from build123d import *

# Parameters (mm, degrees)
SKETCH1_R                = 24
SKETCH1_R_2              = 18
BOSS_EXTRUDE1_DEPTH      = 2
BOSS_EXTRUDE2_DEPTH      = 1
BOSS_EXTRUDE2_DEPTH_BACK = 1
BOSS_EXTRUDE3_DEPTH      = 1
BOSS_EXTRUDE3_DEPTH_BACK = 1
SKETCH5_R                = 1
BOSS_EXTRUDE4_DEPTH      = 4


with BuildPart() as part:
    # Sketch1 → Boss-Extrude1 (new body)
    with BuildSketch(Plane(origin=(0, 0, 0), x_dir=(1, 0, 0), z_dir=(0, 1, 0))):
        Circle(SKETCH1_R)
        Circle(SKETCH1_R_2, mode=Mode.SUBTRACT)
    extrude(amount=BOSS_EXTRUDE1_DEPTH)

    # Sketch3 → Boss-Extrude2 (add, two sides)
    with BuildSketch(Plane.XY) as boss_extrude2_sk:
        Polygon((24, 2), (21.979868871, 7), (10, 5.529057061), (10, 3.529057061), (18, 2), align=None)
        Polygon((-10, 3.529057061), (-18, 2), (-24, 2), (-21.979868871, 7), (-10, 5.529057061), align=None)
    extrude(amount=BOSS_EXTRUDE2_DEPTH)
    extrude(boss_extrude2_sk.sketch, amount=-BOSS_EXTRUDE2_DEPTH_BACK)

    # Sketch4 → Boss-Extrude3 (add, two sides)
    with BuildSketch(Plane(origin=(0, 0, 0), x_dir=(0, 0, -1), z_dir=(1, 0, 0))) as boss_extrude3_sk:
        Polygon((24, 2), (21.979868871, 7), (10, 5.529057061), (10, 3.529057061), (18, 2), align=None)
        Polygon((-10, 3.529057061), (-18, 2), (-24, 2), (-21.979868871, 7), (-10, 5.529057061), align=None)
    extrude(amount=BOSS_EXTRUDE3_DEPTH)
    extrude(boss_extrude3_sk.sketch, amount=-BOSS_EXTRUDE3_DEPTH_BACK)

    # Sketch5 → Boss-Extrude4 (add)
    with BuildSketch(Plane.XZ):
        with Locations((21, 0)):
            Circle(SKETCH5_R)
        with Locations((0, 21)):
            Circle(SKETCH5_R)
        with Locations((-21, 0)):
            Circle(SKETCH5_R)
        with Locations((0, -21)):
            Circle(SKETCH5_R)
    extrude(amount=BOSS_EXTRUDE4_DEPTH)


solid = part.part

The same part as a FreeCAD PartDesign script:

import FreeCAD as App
import Part
import Sketcher
from FreeCAD import Vector
Q = App.Units.Quantity

doc = App.newDocument("Part")
body = doc.addObject("PartDesign::Body", "Body")

# Sketch on XZ plane
sketch1 = body.newObject("Sketcher::SketchObject", "Sketch")
sketch1.AttachmentSupport = (doc.getObject("XZ_Plane"), [""])
sketch1.MapMode = "FlatFace"
sketch1.addGeometry([
    Part.Circle(Vector(0, 0, 0), Vector(0, 0, 1), 24),
    Part.Circle(Vector(0, 0, 0), Vector(0, 0, 1), 18),
], False)
sketch1.addConstraint([
    Sketcher.Constraint("Coincident", 0, 3, -1, 1),
    Sketcher.Constraint("Coincident", 1, 3, -1, 1),
    Sketcher.Constraint("Diameter", 0, Q("48 mm")),
    Sketcher.Constraint("Diameter", 1, Q("36 mm")),
])
pad1 = body.newObject("PartDesign::Pad", "Pad")
pad1.Profile = sketch1
pad1.Length = 2
pad1.Reversed = True

# Sketch on XY plane
sketch2 = body.newObject("Sketcher::SketchObject", "Sketch001")
sketch2.AttachmentSupport = (doc.getObject("XY_Plane"), [""])
sketch2.MapMode = "FlatFace"
sketch2.addGeometry([
    Part.LineSegment(Vector(24, 2, 0), Vector(21.979869, 7, 0)),  # 0
    Part.LineSegment(Vector(21.979869, 7, 0), Vector(10, 5.529057, 0)),  # 1
    Part.LineSegment(Vector(10, 5.529057, 0), Vector(10, 3.529057, 0)),  # 2
    Part.LineSegment(Vector(10, 3.529057, 0), Vector(18, 2, 0)),  # 3
    Part.LineSegment(Vector(18, 2, 0), Vector(24, 2, 0)),  # 4
    Part.LineSegment(Vector(-18, 2, 0), Vector(-10, 3.529057, 0)),  # 5
    Part.LineSegment(Vector(-10, 3.529057, 0), Vector(-10, 5.529057, 0)),  # 6
    Part.LineSegment(Vector(-10, 5.529057, 0), Vector(-21.979869, 7, 0)),  # 7
    Part.LineSegment(Vector(-21.979869, 7, 0), Vector(-24, 2, 0)),  # 8
    Part.LineSegment(Vector(-24, 2, 0), Vector(-18, 2, 0)),  # 9
], False)
sketch2.addConstraint([
    Sketcher.Constraint("Coincident", 0, 2, 1, 1),
    Sketcher.Constraint("Coincident", 1, 2, 2, 1),
    Sketcher.Constraint("Coincident", 2, 2, 3, 1),
    Sketcher.Constraint("Coincident", 3, 2, 4, 1),
    Sketcher.Constraint("Coincident", 4, 2, 0, 1),
    Sketcher.Constraint("Coincident", 5, 2, 6, 1),
    Sketcher.Constraint("Coincident", 6, 2, 7, 1),
    Sketcher.Constraint("Coincident", 7, 2, 8, 1),
    Sketcher.Constraint("Coincident", 8, 2, 9, 1),
    Sketcher.Constraint("Coincident", 9, 2, 5, 1),
    Sketcher.Constraint("Vertical", 2),
    Sketcher.Constraint("Horizontal", 4),
    Sketcher.Constraint("Vertical", 6),
    Sketcher.Constraint("Horizontal", 9),
    Sketcher.Constraint("Symmetric", 2, 2, 5, 2, -2),
    Sketcher.Constraint("Symmetric", 0, 2, 7, 2, -2),
    Sketcher.Constraint("Symmetric", 4, 2, 8, 2, -2),
    Sketcher.Constraint("Horizontal", 1, 2, 6, 2),
    Sketcher.Constraint("Equal", 4, 9),
    Sketcher.Constraint("DistanceX", 4, 1, 4, 2, Q("6 mm")),
    Sketcher.Constraint("DistanceY", 2, 2, 2, 1, Q("2 mm")),
    Sketcher.Constraint("Angle", 0, Q("112 deg")),
    Sketcher.Constraint("Angle", 1, Q("-173 deg")),
    Sketcher.Constraint("DistanceY", -1, 1, 0, 2, Q("7 mm")),
    Sketcher.Constraint("DistanceX", -1, 1, 1, 2, Q("10 mm")),
    Sketcher.Constraint("DistanceX", -1, 1, 3, 2, Q("18 mm")),
    Sketcher.Constraint("DistanceY", -1, 1, 3, 2, Q("2 mm")),
])
pad2 = body.newObject("PartDesign::Pad", "Pad001")
pad2.Profile = sketch2
pad2.Type = "TwoLengths"
pad2.Length = 1
pad2.Length2 = 1

# Sketch on YZ plane
sketch3 = body.newObject("Sketcher::SketchObject", "Sketch002")
sketch3.AttachmentSupport = (doc.getObject("YZ_Plane"), [""])
sketch3.MapMode = "FlatFace"
sketch3.addGeometry([
    Part.LineSegment(Vector(2, -24, 0), Vector(7, -21.979869, 0)),  # 0
    Part.LineSegment(Vector(7, -21.979869, 0), Vector(5.529057, -10, 0)),  # 1
    Part.LineSegment(Vector(5.529057, -10, 0), Vector(3.529057, -10, 0)),  # 2
    Part.LineSegment(Vector(3.529057, -10, 0), Vector(2, -18, 0)),  # 3
    Part.LineSegment(Vector(2, -18, 0), Vector(2, -24, 0)),  # 4
    Part.LineSegment(Vector(2, 18, 0), Vector(3.529057, 10, 0)),  # 5
    Part.LineSegment(Vector(3.529057, 10, 0), Vector(5.529057, 10, 0)),  # 6
    Part.LineSegment(Vector(5.529057, 10, 0), Vector(7, 21.979869, 0)),  # 7
    Part.LineSegment(Vector(7, 21.979869, 0), Vector(2, 24, 0)),  # 8
    Part.LineSegment(Vector(2, 24, 0), Vector(2, 18, 0)),  # 9
], False)
sketch3.addConstraint([
    Sketcher.Constraint("Coincident", 0, 2, 1, 1),
    Sketcher.Constraint("Coincident", 1, 2, 2, 1),
    Sketcher.Constraint("Coincident", 2, 2, 3, 1),
    Sketcher.Constraint("Coincident", 3, 2, 4, 1),
    Sketcher.Constraint("Coincident", 4, 2, 0, 1),
    Sketcher.Constraint("Coincident", 5, 2, 6, 1),
    Sketcher.Constraint("Coincident", 6, 2, 7, 1),
    Sketcher.Constraint("Coincident", 7, 2, 8, 1),
    Sketcher.Constraint("Coincident", 8, 2, 9, 1),
    Sketcher.Constraint("Coincident", 9, 2, 5, 1),
    Sketcher.Constraint("Horizontal", 2),
    Sketcher.Constraint("Vertical", 4),
    Sketcher.Constraint("Horizontal", 6),
    Sketcher.Constraint("Vertical", 9),
    Sketcher.Constraint("Symmetric", 2, 2, 5, 2, -1),
    Sketcher.Constraint("Symmetric", 0, 2, 7, 2, -1),
    Sketcher.Constraint("Symmetric", 4, 2, 8, 2, -1),
    Sketcher.Constraint("Vertical", 1, 2, 6, 2),
    Sketcher.Constraint("Equal", 4, 9),
    Sketcher.Constraint("DistanceX", 2, 2, 2, 1, Q("2 mm")),
    Sketcher.Constraint("DistanceY", 4, 2, 4, 1, Q("6 mm")),
    Sketcher.Constraint("Angle", 0, Q("22 deg")),
    Sketcher.Constraint("Angle", 1, Q("97 deg")),
    Sketcher.Constraint("DistanceX", -1, 1, 0, 2, Q("7 mm")),
    Sketcher.Constraint("DistanceY", 1, 2, -1, 1, Q("10 mm")),
    Sketcher.Constraint("DistanceX", -1, 1, 3, 2, Q("2 mm")),
    Sketcher.Constraint("DistanceY", 3, 2, -1, 1, Q("18 mm")),
])
pad3 = body.newObject("PartDesign::Pad", "Pad002")
pad3.Profile = sketch3
pad3.Type = "TwoLengths"
pad3.Length = 1
pad3.Length2 = 1

# Sketch on XZ plane
sketch4 = body.newObject("Sketcher::SketchObject", "Sketch003")
sketch4.AttachmentSupport = (doc.getObject("XZ_Plane"), [""])
sketch4.MapMode = "FlatFace"
sketch4.addGeometry([
    Part.Circle(Vector(21, 0, 0), Vector(0, 0, 1), 1),
    Part.Circle(Vector(0, 21, 0), Vector(0, 0, 1), 1),
    Part.Circle(Vector(-21, 0, 0), Vector(0, 0, 1), 1),
    Part.Circle(Vector(0, -21, 0), Vector(0, 0, 1), 1),
], False)
sketch4.addConstraint([
    Sketcher.Constraint("Equal", 0, 1),
    Sketcher.Constraint("Equal", 1, 2),
    Sketcher.Constraint("Equal", 2, 3),
    Sketcher.Constraint("Symmetric", 0, 3, 2, 3, -1, 1),
    Sketcher.Constraint("Symmetric", 1, 3, 3, 3, -1, 1),
    Sketcher.Constraint("PointOnObject", 0, 3, -1),
    Sketcher.Constraint("PointOnObject", 1, 3, -2),
    Sketcher.Constraint("Diameter", 0, Q("2 mm")),
    Sketcher.Constraint("DistanceX", -1, 1, 0, 3, Q("21 mm")),
    Sketcher.Constraint("DistanceY", -1, 1, 1, 3, Q("21 mm")),
])
pad4 = body.newObject("PartDesign::Pad", "Pad003")
pad4.Profile = sketch4
pad4.Length = 4

doc.recompute()
